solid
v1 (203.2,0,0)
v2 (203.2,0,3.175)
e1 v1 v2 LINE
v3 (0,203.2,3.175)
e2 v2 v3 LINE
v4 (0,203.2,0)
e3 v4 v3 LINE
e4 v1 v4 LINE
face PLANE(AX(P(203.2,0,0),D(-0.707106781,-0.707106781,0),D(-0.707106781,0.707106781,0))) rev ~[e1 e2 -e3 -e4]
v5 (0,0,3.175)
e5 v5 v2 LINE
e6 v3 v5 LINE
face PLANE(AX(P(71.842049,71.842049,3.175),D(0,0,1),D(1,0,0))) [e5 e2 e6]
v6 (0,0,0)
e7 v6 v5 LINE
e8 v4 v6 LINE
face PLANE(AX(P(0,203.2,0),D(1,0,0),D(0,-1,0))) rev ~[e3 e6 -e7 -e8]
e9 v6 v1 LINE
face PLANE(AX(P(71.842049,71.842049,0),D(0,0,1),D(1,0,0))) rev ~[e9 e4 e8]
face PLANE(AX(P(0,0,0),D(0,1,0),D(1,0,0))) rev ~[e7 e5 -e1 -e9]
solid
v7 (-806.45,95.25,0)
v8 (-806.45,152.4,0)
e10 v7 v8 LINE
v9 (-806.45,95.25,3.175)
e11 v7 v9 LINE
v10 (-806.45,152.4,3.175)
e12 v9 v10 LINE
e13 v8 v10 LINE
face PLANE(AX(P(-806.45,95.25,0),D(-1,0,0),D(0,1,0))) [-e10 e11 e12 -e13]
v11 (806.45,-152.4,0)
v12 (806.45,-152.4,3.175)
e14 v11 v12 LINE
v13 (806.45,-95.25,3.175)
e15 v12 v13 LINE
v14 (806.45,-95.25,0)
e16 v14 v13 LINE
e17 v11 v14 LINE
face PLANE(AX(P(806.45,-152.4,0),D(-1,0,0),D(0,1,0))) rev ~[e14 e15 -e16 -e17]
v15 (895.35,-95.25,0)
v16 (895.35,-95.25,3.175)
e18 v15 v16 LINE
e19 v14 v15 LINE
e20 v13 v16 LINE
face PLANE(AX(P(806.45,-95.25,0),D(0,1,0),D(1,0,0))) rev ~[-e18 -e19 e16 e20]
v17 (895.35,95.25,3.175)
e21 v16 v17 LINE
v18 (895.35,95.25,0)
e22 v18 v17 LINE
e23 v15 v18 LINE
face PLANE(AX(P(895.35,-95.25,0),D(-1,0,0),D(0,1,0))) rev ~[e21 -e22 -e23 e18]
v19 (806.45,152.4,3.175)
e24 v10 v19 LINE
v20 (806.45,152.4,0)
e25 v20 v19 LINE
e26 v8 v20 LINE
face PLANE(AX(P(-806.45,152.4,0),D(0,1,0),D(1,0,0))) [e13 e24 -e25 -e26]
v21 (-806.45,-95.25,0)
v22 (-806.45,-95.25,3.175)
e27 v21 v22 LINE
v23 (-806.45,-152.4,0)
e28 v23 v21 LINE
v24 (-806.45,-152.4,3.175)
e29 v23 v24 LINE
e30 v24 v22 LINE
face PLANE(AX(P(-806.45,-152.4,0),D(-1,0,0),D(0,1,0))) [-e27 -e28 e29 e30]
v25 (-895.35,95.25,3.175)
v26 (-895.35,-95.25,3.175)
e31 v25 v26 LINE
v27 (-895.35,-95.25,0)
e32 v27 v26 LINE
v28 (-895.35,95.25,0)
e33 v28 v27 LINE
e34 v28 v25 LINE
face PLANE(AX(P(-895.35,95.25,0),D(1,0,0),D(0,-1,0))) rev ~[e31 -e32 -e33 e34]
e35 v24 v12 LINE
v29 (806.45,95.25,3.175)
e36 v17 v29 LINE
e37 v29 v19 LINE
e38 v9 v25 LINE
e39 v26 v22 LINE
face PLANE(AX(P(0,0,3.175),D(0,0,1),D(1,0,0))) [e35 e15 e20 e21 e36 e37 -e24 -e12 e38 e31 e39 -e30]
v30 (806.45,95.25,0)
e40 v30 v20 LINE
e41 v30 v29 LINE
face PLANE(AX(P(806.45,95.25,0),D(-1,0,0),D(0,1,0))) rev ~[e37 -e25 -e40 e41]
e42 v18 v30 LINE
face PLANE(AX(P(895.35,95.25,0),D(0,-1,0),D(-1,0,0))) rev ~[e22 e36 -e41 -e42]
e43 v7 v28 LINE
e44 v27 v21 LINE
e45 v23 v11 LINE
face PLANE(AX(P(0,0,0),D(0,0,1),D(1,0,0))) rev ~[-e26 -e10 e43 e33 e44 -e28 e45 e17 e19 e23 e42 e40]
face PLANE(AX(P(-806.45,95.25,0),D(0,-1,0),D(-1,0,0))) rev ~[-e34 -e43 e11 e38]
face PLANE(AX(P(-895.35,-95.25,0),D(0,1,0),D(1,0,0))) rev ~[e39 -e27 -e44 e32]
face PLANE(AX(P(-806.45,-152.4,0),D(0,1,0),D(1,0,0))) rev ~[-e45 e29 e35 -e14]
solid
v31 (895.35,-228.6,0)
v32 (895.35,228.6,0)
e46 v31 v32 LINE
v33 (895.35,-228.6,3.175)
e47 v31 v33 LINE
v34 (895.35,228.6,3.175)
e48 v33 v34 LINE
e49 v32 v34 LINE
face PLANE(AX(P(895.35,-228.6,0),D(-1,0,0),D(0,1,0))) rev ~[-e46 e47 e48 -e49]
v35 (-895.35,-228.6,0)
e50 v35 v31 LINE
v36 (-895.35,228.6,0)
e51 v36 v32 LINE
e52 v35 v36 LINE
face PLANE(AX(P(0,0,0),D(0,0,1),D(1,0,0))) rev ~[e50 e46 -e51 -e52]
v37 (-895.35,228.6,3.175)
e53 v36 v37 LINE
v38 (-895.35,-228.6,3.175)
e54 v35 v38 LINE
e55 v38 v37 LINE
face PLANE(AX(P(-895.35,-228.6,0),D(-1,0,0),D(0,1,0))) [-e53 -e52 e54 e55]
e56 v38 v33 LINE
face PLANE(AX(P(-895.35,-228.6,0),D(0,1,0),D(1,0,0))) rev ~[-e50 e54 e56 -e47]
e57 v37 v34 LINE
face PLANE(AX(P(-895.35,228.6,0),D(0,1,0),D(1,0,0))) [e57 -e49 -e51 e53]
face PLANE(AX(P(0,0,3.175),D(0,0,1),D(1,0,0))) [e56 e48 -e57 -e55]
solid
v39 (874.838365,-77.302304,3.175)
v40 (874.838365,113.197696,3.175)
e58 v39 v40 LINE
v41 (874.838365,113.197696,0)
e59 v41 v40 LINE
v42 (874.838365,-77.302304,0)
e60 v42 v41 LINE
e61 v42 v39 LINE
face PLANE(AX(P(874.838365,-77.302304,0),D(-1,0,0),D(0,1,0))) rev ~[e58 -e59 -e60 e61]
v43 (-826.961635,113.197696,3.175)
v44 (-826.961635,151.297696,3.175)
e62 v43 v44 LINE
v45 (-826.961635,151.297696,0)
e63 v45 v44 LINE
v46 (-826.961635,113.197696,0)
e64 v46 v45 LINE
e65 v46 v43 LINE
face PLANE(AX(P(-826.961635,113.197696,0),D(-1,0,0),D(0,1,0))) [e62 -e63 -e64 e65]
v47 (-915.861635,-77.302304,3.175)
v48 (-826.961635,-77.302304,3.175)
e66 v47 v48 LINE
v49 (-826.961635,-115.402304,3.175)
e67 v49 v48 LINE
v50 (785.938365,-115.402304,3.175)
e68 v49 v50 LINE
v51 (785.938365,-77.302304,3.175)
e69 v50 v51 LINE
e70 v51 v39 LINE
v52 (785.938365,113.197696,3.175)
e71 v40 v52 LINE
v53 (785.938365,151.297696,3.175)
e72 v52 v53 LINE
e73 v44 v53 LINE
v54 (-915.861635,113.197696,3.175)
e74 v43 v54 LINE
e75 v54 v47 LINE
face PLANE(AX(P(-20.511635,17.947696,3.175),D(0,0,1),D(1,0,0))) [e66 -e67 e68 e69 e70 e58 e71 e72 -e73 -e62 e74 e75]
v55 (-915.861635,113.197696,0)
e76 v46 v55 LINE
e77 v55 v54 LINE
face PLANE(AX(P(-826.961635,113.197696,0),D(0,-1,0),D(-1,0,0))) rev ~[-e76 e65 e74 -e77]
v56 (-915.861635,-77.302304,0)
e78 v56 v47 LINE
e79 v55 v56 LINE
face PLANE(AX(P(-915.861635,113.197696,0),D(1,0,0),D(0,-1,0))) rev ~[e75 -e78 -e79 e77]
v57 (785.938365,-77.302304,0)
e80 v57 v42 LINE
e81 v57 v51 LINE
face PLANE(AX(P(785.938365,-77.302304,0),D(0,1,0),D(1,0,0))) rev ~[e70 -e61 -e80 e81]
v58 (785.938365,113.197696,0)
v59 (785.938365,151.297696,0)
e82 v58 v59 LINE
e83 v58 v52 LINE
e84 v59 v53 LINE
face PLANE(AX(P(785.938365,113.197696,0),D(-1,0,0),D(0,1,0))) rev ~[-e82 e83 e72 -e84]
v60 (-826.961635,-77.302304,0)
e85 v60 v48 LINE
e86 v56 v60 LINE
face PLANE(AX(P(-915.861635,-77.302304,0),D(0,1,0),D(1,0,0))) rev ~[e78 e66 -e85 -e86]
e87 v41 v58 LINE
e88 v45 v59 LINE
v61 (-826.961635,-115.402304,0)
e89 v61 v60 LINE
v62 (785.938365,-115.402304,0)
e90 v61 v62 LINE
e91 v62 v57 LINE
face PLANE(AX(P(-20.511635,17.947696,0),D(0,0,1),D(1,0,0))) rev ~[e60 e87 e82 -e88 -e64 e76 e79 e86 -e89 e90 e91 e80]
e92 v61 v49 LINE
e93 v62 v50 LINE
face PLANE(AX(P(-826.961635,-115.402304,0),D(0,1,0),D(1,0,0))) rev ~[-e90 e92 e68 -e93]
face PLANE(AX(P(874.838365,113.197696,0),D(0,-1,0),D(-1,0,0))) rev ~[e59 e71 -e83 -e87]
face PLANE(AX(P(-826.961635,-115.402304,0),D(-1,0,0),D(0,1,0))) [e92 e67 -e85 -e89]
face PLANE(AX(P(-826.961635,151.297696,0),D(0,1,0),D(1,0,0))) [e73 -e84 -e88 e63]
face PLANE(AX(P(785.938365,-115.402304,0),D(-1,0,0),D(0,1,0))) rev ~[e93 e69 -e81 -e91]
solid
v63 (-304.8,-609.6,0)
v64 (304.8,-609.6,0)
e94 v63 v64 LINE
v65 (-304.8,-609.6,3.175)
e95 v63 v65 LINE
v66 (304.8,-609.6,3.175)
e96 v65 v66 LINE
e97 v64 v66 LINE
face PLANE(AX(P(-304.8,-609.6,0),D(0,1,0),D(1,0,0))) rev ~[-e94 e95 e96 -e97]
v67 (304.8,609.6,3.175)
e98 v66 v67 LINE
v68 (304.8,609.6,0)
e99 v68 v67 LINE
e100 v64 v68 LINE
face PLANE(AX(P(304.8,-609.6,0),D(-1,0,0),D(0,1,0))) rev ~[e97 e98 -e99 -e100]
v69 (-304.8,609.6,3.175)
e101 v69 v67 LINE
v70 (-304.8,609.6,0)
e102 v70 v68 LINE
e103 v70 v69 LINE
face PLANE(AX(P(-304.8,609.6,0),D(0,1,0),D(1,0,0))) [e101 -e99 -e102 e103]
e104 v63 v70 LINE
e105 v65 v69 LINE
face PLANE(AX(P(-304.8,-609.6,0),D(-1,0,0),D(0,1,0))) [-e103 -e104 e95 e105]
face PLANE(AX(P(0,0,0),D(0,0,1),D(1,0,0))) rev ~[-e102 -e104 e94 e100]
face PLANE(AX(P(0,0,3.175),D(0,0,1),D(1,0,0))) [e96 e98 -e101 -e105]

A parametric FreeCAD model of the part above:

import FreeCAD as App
import Part
import Sketcher

V = App.Vector
Q = App.Units.Quantity

doc = App.newDocument("Part")
body = doc.addObject("PartDesign::Body", "Body")

sketch1 = doc.addObject("Sketcher::SketchObject", "Sketch")
body.addObject(sketch1)
sketch1.AttachmentSupport = (doc.XY_Plane, [""])
sketch1.MapMode = "FlatFace"
sketch1.addGeometry([
    Part.LineSegment(V(-895, 95, 0), V(-895, -95, 0)),
    Part.LineSegment(V(-895, -95, 0), V(-806, -95, 0)),
    Part.LineSegment(V(-806, -95, 0), V(-806, -152, 0)),
    Part.LineSegment(V(-806, -152, 0), V(806, -152, 0)),
    Part.LineSegment(V(806, -152, 0), V(806, -95, 0)),
    Part.LineSegment(V(806, -95, 0), V(895, -95, 0)),
    Part.LineSegment(V(895, -95, 0), V(895, 95, 0)),
    Part.LineSegment(V(895, 95, 0), V(806, 95, 0)),
    Part.LineSegment(V(806, 95, 0), V(806, 152, 0)),
    Part.LineSegment(V(806, 152, 0), V(-806, 152, 0)),
    Part.LineSegment(V(-806, 152, 0), V(-806, 95, 0)),
    Part.LineSegment(V(-806, 95, 0), V(-895, 95, 0)),
], False)
sketch1.addConstraint([
    Sketcher.Constraint("Coincident", 0, 2, 1, 1),
    Sketcher.Constraint("Coincident", 1, 2, 2, 1),
    Sketcher.Constraint("Coincident", 2, 2, 3, 1),
    Sketcher.Constraint("Coincident", 3, 2, 4, 1),
    Sketcher.Constraint("Coincident", 4, 2, 5, 1),
    Sketcher.Constraint("Coincident", 5, 2, 6, 1),
    Sketcher.Constraint("Coincident", 6, 2, 7, 1),
    Sketcher.Constraint("Coincident", 7, 2, 8, 1),
    Sketcher.Constraint("Coincident", 8, 2, 9, 1),
    Sketcher.Constraint("Coincident", 9, 2, 10, 1),
    Sketcher.Constraint("Coincident", 10, 2, 11, 1),
    Sketcher.Constraint("Coincident", 11, 2, 0, 1),
    Sketcher.Constraint("Vertical", 0),
    Sketcher.Constraint("Horizontal", 1),
    Sketcher.Constraint("Vertical", 2),
    Sketcher.Constraint("Horizontal", 3),
    Sketcher.Constraint("Vertical", 4),
    Sketcher.Constraint("Horizontal", 5),
    Sketcher.Constraint("Vertical", 6),
    Sketcher.Constraint("Horizontal", 7),
    Sketcher.Constraint("Vertical", 8),
    Sketcher.Constraint("Horizontal", 9),
    Sketcher.Constraint("Vertical", 10),
    Sketcher.Constraint("Horizontal", 11),
    Sketcher.Constraint("Symmetric", 0, 2, 6, 2, -1, 1),
    Sketcher.Constraint("Symmetric", 2, 2, 8, 2, -1, 1),
    Sketcher.Constraint("Symmetric", 4, 2, 10, 2, -1, 1),
    Sketcher.Constraint("Symmetric", 1, 2, 4, 2, -2),
    Sketcher.Constraint("DistanceX", 1, 1, 1, 2, Q("3.5 in")),
    Sketcher.Constraint("DistanceX", 3, 1, 3, 2, Q("63.5 in")),
    Sketcher.Constraint("DistanceY", 0, 2, 0, 1, Q("7.5 in")),
    Sketcher.Constraint("DistanceY", 2, 2, -1, 1, Q("6 in")),
])
pad1 = doc.addObject("PartDesign::Pad", "Pad")
body.addObject(pad1)
pad1.Profile = sketch1
pad1.Length = Q("0.125 in")
body2 = doc.addObject("PartDesign::Body", "Body001")

sketch2 = doc.addObject("Sketcher::SketchObject", "Sketch001")
body2.addObject(sketch2)
sketch2.AttachmentSupport = (doc.getObject("XY_Plane001"), [""])
sketch2.MapMode = "FlatFace"
sketch2.addGeometry([
    Part.LineSegment(V(-916, 113, 0), V(-916, -77, 0)),
    Part.LineSegment(V(-916, -77, 0), V(-827, -77, 0)),
    Part.LineSegment(V(-827, -77, 0), V(-827, -115, 0)),
    Part.LineSegment(V(-827, -115, 0), V(786, -115, 0)),
    Part.LineSegment(V(786, -115, 0), V(786, -77, 0)),
    Part.LineSegment(V(786, -77, 0), V(875, -77, 0)),
    Part.LineSegment(V(875, -77, 0), V(875, 113, 0)),
    Part.LineSegment(V(875, 113, 0), V(786, 113, 0)),
    Part.LineSegment(V(786, 113, 0), V(786, 151, 0)),
    Part.LineSegment(V(786, 151, 0), V(-827, 151, 0)),
    Part.LineSegment(V(-827, 151, 0), V(-827, 113, 0)),
    Part.LineSegment(V(-827, 113, 0), V(-916, 113, 0)),
], False)
sketch2.addConstraint([
    Sketcher.Constraint("Coincident", 0, 2, 1, 1),
    Sketcher.Constraint("Coincident", 1, 2, 2, 1),
    Sketcher.Constraint("Coincident", 2, 2, 3, 1),
    Sketcher.Constraint("Coincident", 3, 2, 4, 1),
    Sketcher.Constraint("Coincident", 4, 2, 5, 1),
    Sketcher.Constraint("Coincident", 5, 2, 6, 1),
    Sketcher.Constraint("Coincident", 6, 2, 7, 1),
    Sketcher.Constraint("Coincident", 7, 2, 8, 1),
    Sketcher.Constraint("Coincident", 8, 2, 9, 1),
    Sketcher.Constraint("Coincident", 9, 2, 10, 1),
    Sketcher.Constraint("Coincident", 10, 2, 11, 1),
    Sketcher.Constraint("Coincident", 11, 2, 0, 1),
    Sketcher.Constraint("Vertical", 0),
    Sketcher.Constraint("Horizontal", 1),
    Sketcher.Constraint("Vertical", 2),
    Sketcher.Constraint("Horizontal", 3),
    Sketcher.Constraint("Vertical", 4),
    Sketcher.Constraint("Horizontal", 5),
    Sketcher.Constraint("Vertical", 6),
    Sketcher.Constraint("Horizontal", 7),
    Sketcher.Constraint("Vertical", 8),
    Sketcher.Constraint("Horizontal", 9),
    Sketcher.Constraint("Vertical", 10),
    Sketcher.Constraint("Horizontal", 11),
    Sketcher.Constraint("Horizontal", 1, 2, 4, 2),
    Sketcher.Constraint("Horizontal", 7, 2, 10, 2),
    Sketcher.Constraint("Vertical", 4, 2, 7, 2),
    Sketcher.Constraint("Vertical", 2, 2, 9, 2),
    Sketcher.Constraint("Equal", 1, 5),
    Sketcher.Constraint("Equal", 4, 8),
    Sketcher.Constraint("DistanceX", 1, 1, 1, 2, Q("3.5 in")),
    Sketcher.Constraint("DistanceX", 3, 1, 3, 2, Q("63.5 in")),
    Sketcher.Constraint("DistanceY", 0, 2, 0, 1, Q("7.5 in")),
    Sketcher.Constraint("DistanceY", 2, 2, 2, 1, Q("1.5 in")),
    Sketcher.Constraint("DistanceX", 0, 2, -1, 1, 915.861635),
    Sketcher.Constraint("DistanceY", 0, 2, -1, 1, 77.302304),
])
pad2 = doc.addObject("PartDesign::Pad", "Pad001")
body2.addObject(pad2)
pad2.Profile = sketch2
pad2.Length = Q("0.125 in")
body3 = doc.addObject("PartDesign::Body", "Body002")

sketch3 = doc.addObject("Sketcher::SketchObject", "Sketch002")
body3.addObject(sketch3)
sketch3.AttachmentSupport = (doc.getObject("XY_Plane002"), [""])
sketch3.MapMode = "FlatFace"
sketch3.addGeometry([
    Part.LineSegment(V(-895, 229, 0), V(-895, -229, 0)),
    Part.LineSegment(V(-895, -229, 0), V(895, -229, 0)),
    Part.LineSegment(V(895, -229, 0), V(895, 229, 0)),
    Part.LineSegment(V(895, 229, 0), V(-895, 229, 0)),
], False)
sketch3.addConstraint([
    Sketcher.Constraint("Coincident", 0, 2, 1, 1),
    Sketcher.Constraint("Coincident", 1, 2, 2, 1),
    Sketcher.Constraint("Coincident", 2, 2, 3, 1),
    Sketcher.Constraint("Coincident", 3, 2, 0, 1),
    Sketcher.Constraint("Vertical", 0),
    Sketcher.Constraint("Horizontal", 1),
    Sketcher.Constraint("Vertical", 2),
    Sketcher.Constraint("Horizontal", 3),
    Sketcher.Constraint("Symmetric", 0, 2, 2, 2, -1, 1),
    Sketcher.Constraint("DistanceY", 0, 2, 0, 1, Q("18 in")),
    Sketcher.Constraint("DistanceX", 1, 1, 1, 2, Q("70.5 in")),
])
pad3 = doc.addObject("PartDesign::Pad", "Pad002")
body3.addObject(pad3)
pad3.Profile = sketch3
pad3.Length = Q("0.125 in")
body4 = doc.addObject("PartDesign::Body", "Body003")

sketch4 = doc.addObject("Sketcher::SketchObject", "Sketch003")
body4.addObject(sketch4)
sketch4.AttachmentSupport = (doc.getObject("XY_Plane003"), [""])
sketch4.MapMode = "FlatFace"
sketch4.addGeometry([
    Part.LineSegment(V(0, 203, 0), V(0, 0, 0)),
    Part.LineSegment(V(0, 0, 0), V(203, 0, 0)),
    Part.LineSegment(V(203, 0, 0), V(0, 203, 0)),
], False)
sketch4.addConstraint([
    Sketcher.Constraint("Coincident", 0, 2, 1, 1),
    Sketcher.Constraint("Coincident", 1, 2, 2, 1),
    Sketcher.Constraint("Coincident", 2, 2, 0, 1),
    Sketcher.Constraint("Vertical", 0),
    Sketcher.Constraint("Horizontal", 1),
    Sketcher.Constraint("Coincident", 0, 2, -1, 1),
    Sketcher.Constraint("Equal", 1, 0),
    Sketcher.Constraint("DistanceX", 1, 1, 1, 2, Q("8 in")),
])
pad4 = doc.addObject("PartDesign::Pad", "Pad003")
body4.addObject(pad4)
pad4.Profile = sketch4
pad4.Length = Q("0.125 in")
body5 = doc.addObject("PartDesign::Body", "Body004")

sketch5 = doc.addObject("Sketcher::SketchObject", "Sketch004")
body5.addObject(sketch5)
sketch5.AttachmentSupport = (doc.getObject("XY_Plane004"), [""])
sketch5.MapMode = "FlatFace"
sketch5.addGeometry([
    Part.LineSegment(V(-305, 610, 0), V(-305, -610, 0)),
    Part.LineSegment(V(-305, -610, 0), V(305, -610, 0)),
    Part.LineSegment(V(305, -610, 0), V(305, 610, 0)),
    Part.LineSegment(V(305, 610, 0), V(-305, 610, 0)),
], False)
sketch5.addConstraint([
    Sketcher.Constraint("Coincident", 0, 2, 1, 1),
    Sketcher.Constraint("Coincident", 1, 2, 2, 1),
    Sketcher.Constraint("Coincident", 2, 2, 3, 1),
    Sketcher.Constraint("Coincident", 3, 2, 0, 1),
    Sketcher.Constraint("Vertical", 0),
    Sketcher.Constraint("Horizontal", 1),
    Sketcher.Constraint("Vertical", 2),
    Sketcher.Constraint("Horizontal", 3),
    Sketcher.Constraint("Symmetric", 0, 2, 2, 2, -1, 1),
    Sketcher.Constraint("DistanceX", 1, 1, 1, 2, Q("24 in")),
    Sketcher.Constraint("DistanceY", 0, 2, 0, 1, Q("48 in")),
])
pad5 = doc.addObject("PartDesign::Pad", "Pad004")
body5.addObject(pad5)
pad5.Profile = sketch5
pad5.Length = Q("0.125 in")

doc.recompute()
